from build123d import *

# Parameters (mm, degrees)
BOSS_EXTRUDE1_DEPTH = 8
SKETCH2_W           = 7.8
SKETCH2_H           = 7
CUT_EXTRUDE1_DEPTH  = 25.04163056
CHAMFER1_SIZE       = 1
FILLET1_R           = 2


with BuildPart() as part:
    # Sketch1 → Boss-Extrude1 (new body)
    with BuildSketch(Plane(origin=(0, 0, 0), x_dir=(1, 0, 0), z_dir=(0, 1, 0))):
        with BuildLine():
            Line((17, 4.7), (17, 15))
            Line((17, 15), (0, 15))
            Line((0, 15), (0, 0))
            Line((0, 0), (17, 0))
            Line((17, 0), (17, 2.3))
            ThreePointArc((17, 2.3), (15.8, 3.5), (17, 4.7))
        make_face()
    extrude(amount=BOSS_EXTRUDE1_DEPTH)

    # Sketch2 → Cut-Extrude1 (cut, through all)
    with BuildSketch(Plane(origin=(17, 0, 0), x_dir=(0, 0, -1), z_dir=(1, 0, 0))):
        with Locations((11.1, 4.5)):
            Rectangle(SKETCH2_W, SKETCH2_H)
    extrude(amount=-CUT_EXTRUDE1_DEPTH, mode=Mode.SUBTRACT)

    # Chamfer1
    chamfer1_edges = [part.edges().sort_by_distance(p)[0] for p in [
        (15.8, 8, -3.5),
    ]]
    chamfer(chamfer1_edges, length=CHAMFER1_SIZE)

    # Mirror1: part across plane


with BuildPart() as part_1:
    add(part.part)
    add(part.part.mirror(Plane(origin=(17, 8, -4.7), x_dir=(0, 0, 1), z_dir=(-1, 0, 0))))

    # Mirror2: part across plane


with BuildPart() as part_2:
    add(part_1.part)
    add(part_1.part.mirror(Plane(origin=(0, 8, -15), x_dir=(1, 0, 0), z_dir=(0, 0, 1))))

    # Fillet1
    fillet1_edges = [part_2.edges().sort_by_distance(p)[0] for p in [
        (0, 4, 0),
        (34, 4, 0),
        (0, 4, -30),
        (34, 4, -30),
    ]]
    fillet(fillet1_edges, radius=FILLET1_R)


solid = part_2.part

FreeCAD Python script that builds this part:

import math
import FreeCAD as App
import Part
import Sketcher

V = App.Vector
Q = App.Units.Quantity


def edges_at(feature, points):
    """Names of the edges that pass closest to the given points."""
    edges = feature.Shape.Edges
    near = lambda p: min(range(len(edges)), key=lambda i: edges[i].distToShape(Part.Vertex(*p))[0])
    return sorted({f"Edge{near(p) + 1}" for p in points})

doc = App.newDocument("Part")
params = doc.addObject("Spreadsheet::Sheet", "Params")
for row, (alias, value) in enumerate([
    ("sketch1_radius", "1.2 mm"),
    ("sketch1_width", "17 mm"),
    ("sketch1_height", "15 mm"),
    ("sketch1_height2", "10.3 mm"),
    ("pad1_length", "8 mm"),
    ("sketch2_width", "7 mm"),
    ("sketch2_height", "7.8 mm"),
    ("chamfer_size", "1 mm"),
    ("fillet_radius", "2 mm"),
], start=1):
    params.set(f"A{row}", alias)
    params.set(f"B{row}", "=" + value)
    params.setAlias(f"B{row}", alias)

body = doc.addObject("PartDesign::Body", "Body")

# Sketch on XZ plane
sketch1 = body.newObject("Sketcher::SketchObject", "Sketch")
sketch1.AttachmentSupport = (doc.getObject("XZ_Plane"), [""])
sketch1.MapMode = "FlatFace"
sketch1.addGeometry([
    Part.LineSegment(V(17, -4.7, 0), V(17, -15, 0)),  # 0
    Part.LineSegment(V(17, -15, 0), V(0, -15, 0)),  # 1
    Part.LineSegment(V(0, -15, 0), V(0, 0, 0)),  # 2
    Part.LineSegment(V(0, 0, 0), V(17, 0, 0)),  # 3
    Part.LineSegment(V(17, 0, 0), V(17, -2.3, 0)),  # 4
    Part.ArcOfCircle(Part.Circle(V(17, -3.5, 0), V(0, 0, 1), 1.2), math.radians(90), math.radians(270)),  # 5
], False)
sketch1.addConstraint([
    Sketcher.Constraint("Coincident", 0, 2, 1, 1),
    Sketcher.Constraint("Coincident", 1, 2, 2, 1),
    Sketcher.Constraint("Coincident", 2, 2, 3, 1),
    Sketcher.Constraint("Coincident", 3, 2, 4, 1),
    Sketcher.Constraint("Coincident", 4, 2, 5, 1),
    Sketcher.Constraint("Coincident", 5, 2, 0, 1),
    Sketcher.Constraint("Vertical", 0),
    Sketcher.Constraint("Horizontal", 1),
    Sketcher.Constraint("Vertical", 2),
    Sketcher.Constraint("Horizontal", 3),
    Sketcher.Constraint("Vertical", 4),
    Sketcher.Constraint("Coincident", 2, 2, -1, 1),
    Sketcher.Constraint("Vertical", 5, 3, 0, 2),
    Sketcher.Constraint("Vertical", 0, 2, 3, 2),
    Sketcher.Constraint("Radius", 5, Q("1.2 mm")),
    Sketcher.Constraint("DistanceX", 1, 2, 1, 1, Q("17 mm")),
    Sketcher.Constraint("DistanceY", 2, 1, 2, 2, Q("15 mm")),
    Sketcher.Constraint("DistanceY", 0, 2, 0, 1, Q("10.3 mm")),
])
sketch1.setExpression("Constraints[14]", "Params.sketch1_radius")
sketch1.setExpression("Constraints[15]", "Params.sketch1_width")
sketch1.setExpression("Constraints[16]", "Params.sketch1_height")
sketch1.setExpression("Constraints[17]", "Params.sketch1_height2")
pad1 = body.newObject("PartDesign::Pad", "Pad")
pad1.Profile = sketch1
pad1.setExpression("Length", "Params.pad1_length")
pad1.Reversed = True

# Sketch on YZ plane
sketch2 = body.newObject("Sketcher::SketchObject", "Sketch001")
sketch2.AttachmentSupport = (doc.getObject("YZ_Plane"), [""])
sketch2.MapMode = "FlatFace"
sketch2.AttachmentOffset = App.Placement(V(0, 0, 17), App.Rotation())
sketch2.addGeometry([
    Part.LineSegment(V(8, -7, 0), V(1, -7, 0)),
    Part.LineSegment(V(1, -7, 0), V(1, -15, 0)),
    Part.LineSegment(V(1, -15, 0), V(8, -15, 0)),
    Part.LineSegment(V(8, -15, 0), V(8, -7, 0)),
], False)
sketch2.addConstraint([
    Sketcher.Constraint("Coincident", 0, 2, 1, 1),
    Sketcher.Constraint("Coincident", 1, 2, 2, 1),
    Sketcher.Constraint("Coincident", 2, 2, 3, 1),
    Sketcher.Constraint("Coincident", 3, 2, 0, 1),
    Sketcher.Constraint("Horizontal", 0),
    Sketcher.Constraint("Vertical", 1),
    Sketcher.Constraint("Horizontal", 2),
    Sketcher.Constraint("Vertical", 3),
    Sketcher.Constraint("DistanceX", 0, 2, 0, 1, Q("7 mm")),
    Sketcher.Constraint("DistanceY", 1, 2, 1, 1, Q("7.8 mm")),
    Sketcher.Constraint("DistanceX", -1, 1, 0, 2, Q("1 mm")),
    Sketcher.Constraint("DistanceY", 1, 2, -1, 1, Q("15 mm")),
])
sketch2.setExpression("Constraints[8]", "Params.sketch2_width")
sketch2.setExpression("Constraints[9]", "Params.sketch2_height")
pocket1 = body.newObject("PartDesign::Pocket", "Pocket")
pocket1.Profile = sketch2
pocket1.Type = "ThroughAll"
doc.recompute()

chamfer = body.newObject("PartDesign::Chamfer", "Chamfer")
chamfer.Base = (pocket1, edges_at(pocket1, [(15.8, 8, -3.5)]))
chamfer.setExpression("Size", "Params.chamfer_size")
body2 = doc.addObject("PartDesign::Body", "Body001")
doc.recompute()

body2.BaseFeature = body
doc.recompute()

mirroring = doc.addObject("Part::Mirroring", "Mirroring")
mirroring.Source = body
mirroring.Base = V(17, 8, -4.7)
mirroring.Normal = V(-1, 0, 0)
body3 = doc.addObject("PartDesign::Body", "Body002")
body3.BaseFeature = mirroring
boolean = body2.newObject("PartDesign::Boolean", "Boolean")
boolean.Type = "Fuse"
boolean.addObjects([body3])
doc.recompute()
body4 = doc.addObject("PartDesign::Body", "Body003")
doc.recompute()

body4.BaseFeature = body2
doc.recompute()

mirroring2 = doc.addObject("Part::Mirroring", "Mirroring001")
mirroring2.Source = body2
mirroring2.Base = V(0, 8, -15)
mirroring2.Normal = V(0, 0, 1)
body5 = doc.addObject("PartDesign::Body", "Body004")
body5.BaseFeature = mirroring2
boolean2 = body4.newObject("PartDesign::Boolean", "Boolean001")
boolean2.Type = "Fuse"
boolean2.addObjects([body5])
doc.recompute()

fillet = body4.newObject("PartDesign::Fillet", "Fillet")
fillet.Base = (boolean2, edges_at(boolean2, [
    (0, 4, 0),
    (34, 4, 0),
    (0, 4, -30),
    (34, 4, -30),
]))
fillet.setExpression("Radius", "Params.fillet_radius")
mirroring.Visibility = False
mirroring2.Visibility = False

doc.recompute()
